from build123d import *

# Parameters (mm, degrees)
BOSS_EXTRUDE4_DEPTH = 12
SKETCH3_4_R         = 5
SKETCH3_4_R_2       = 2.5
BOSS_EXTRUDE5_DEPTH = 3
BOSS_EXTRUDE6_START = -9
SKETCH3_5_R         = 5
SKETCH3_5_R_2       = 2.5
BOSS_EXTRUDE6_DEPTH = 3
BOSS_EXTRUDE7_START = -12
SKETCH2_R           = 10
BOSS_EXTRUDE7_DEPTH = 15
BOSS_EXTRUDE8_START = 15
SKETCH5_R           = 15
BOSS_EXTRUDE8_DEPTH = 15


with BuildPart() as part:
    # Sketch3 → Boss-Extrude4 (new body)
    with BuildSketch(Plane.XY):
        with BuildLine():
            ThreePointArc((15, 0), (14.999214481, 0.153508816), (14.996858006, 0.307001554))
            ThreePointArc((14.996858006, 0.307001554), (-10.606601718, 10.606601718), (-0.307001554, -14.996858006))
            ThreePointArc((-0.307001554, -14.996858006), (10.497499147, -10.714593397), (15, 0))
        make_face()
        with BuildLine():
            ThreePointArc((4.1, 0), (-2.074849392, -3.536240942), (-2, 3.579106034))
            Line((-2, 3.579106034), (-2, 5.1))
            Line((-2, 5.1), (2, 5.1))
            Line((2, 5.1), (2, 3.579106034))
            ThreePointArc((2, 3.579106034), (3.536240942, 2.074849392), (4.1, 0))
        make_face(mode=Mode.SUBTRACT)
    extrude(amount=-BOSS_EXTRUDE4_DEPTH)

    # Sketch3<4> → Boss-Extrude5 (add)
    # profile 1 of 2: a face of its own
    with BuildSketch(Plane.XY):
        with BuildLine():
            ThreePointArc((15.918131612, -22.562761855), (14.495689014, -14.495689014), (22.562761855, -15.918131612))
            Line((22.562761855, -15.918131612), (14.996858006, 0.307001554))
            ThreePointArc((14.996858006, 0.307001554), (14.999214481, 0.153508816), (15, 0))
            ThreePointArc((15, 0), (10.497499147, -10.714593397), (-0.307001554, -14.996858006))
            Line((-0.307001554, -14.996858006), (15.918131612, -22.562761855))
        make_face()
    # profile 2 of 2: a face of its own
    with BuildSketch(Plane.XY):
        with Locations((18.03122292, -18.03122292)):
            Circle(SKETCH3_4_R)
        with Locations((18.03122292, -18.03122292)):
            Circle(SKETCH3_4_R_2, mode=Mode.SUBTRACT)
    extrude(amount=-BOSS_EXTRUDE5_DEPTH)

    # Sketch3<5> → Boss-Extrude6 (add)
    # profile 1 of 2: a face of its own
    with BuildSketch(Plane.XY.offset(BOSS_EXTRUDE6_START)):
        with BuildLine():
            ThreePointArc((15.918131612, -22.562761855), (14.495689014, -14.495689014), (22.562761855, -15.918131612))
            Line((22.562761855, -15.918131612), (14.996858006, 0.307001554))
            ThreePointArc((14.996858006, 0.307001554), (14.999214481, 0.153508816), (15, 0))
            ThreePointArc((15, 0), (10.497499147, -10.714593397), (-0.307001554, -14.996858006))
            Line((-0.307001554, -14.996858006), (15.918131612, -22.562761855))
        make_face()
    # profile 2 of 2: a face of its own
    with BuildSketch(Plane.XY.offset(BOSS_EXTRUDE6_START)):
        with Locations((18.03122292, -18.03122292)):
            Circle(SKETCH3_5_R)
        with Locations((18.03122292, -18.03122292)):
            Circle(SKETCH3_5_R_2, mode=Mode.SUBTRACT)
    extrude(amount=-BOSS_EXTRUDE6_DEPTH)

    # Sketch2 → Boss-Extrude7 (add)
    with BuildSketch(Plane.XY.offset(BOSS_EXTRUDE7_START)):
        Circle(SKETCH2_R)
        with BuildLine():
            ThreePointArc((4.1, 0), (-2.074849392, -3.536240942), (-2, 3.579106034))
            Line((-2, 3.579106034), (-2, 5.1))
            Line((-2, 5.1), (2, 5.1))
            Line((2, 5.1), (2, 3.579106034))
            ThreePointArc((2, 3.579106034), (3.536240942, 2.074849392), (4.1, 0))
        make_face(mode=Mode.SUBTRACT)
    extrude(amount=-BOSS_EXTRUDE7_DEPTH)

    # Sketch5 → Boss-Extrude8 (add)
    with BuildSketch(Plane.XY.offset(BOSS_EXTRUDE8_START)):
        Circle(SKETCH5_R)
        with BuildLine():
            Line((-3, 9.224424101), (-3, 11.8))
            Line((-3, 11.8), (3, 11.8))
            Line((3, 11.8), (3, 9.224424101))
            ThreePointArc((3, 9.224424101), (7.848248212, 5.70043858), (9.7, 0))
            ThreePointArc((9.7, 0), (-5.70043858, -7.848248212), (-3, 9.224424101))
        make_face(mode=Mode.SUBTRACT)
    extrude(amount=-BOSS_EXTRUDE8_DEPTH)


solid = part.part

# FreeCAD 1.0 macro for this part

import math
import FreeCAD as App
import Part
import Sketcher
Q = App.Units.Quantity

doc = App.newDocument("Part")
body = doc.addObject("PartDesign::Body", "Body")

# Sketch on XY plane
sketch1 = doc.addObject("Sketcher::SketchObject", "Sketch")
body.addObject(sketch1)
sketch1.AttachmentSupport = (doc.XY_Plane, [""])
sketch1.MapMode = "FlatFace"
sketch1.addGeometry([
    Part.ArcOfCircle(Part.Circle(App.Vector(0, 0, 0), App.Vector(0, 0, 1), 15), math.radians(0), math.radians(1.17)),  # 0
    Part.ArcOfCircle(Part.Circle(App.Vector(0, 0, 0), App.Vector(0, 0, 1), 15), math.radians(1), math.radians(269)),  # 1
    Part.ArcOfCircle(Part.Circle(App.Vector(0, 0, 0), App.Vector(0, 0, 1), 15), math.radians(-91), math.radians(0)),  # 2
    Part.ArcOfCircle(Part.Circle(App.Vector(0, 0, 0), App.Vector(0, 0, 1), 4.1), math.radians(0), math.radians(61)),  # 3
    Part.ArcOfCircle(Part.Circle(App.Vector(0, 0, 0), App.Vector(0, 0, 1), 4.1), math.radians(119), math.radians(360)),  # 4
    Part.LineSegment(App.Vector(-2, 3.58, 0), App.Vector(-2, 5.1, 0)),  # 5
    Part.LineSegment(App.Vector(-2, 5.1, 0), App.Vector(2, 5.1, 0)),  # 6
    Part.LineSegment(App.Vector(2, 5.1, 0), App.Vector(2, 3.58, 0)),  # 7
], False)
sketch1.addConstraint([
    Sketcher.Constraint("Tangent", 0, 2, 1, 1),
    Sketcher.Constraint("Tangent", 1, 2, 2, 1),
    Sketcher.Constraint("Coincident", 2, 2, 0, 1),
    Sketcher.Constraint("Tangent", 3, 1, 4, 2),
    Sketcher.Constraint("Coincident", 4, 1, 5, 1),
    Sketcher.Constraint("Coincident", 5, 2, 6, 1),
    Sketcher.Constraint("Coincident", 6, 2, 7, 1),
    Sketcher.Constraint("Coincident", 7, 2, 3, 2),
    Sketcher.Constraint("Vertical", 5),
    Sketcher.Constraint("Horizontal", 6),
    Sketcher.Constraint("Vertical", 7),
    Sketcher.Constraint("Coincident", 0, 3, -1, 1),
    Sketcher.Constraint("Coincident", 3, 3, -1, 1),
    Sketcher.Constraint("Equal", 0, 1),
    Sketcher.Constraint("Equal", 3, 4),
    Sketcher.Constraint("PointOnObject", 2, 2, -1),
    Sketcher.Constraint("PointOnObject", 3, 1, -1),
    Sketcher.Constraint("Horizontal", 4, 1, 7, 2),
    Sketcher.Constraint("Radius", 0, Q("15 mm")),
    Sketcher.Constraint("Radius", 3, Q("4.1 mm")),
    Sketcher.Constraint("DistanceX", 6, 1, 6, 2, Q("4 mm")),
    Sketcher.Constraint("DistanceY", -1, 1, 5, 2, Q("5.1 mm")),
    Sketcher.Constraint("DistanceY", -1, 1, 0, 2, Q("0.307002 mm")),
    Sketcher.Constraint("DistanceX", 1, 2, -1, 1, Q("0.307002 mm")),
])
pad1 = doc.addObject("PartDesign::Pad", "Pad")
body.addObject(pad1)
pad1.Profile = sketch1
pad1.Length = 12
pad1.Reversed = True

# Sketch on XY plane
sketch2 = doc.addObject("Sketcher::SketchObject", "Sketch001")
body.addObject(sketch2)
sketch2.AttachmentSupport = (doc.XY_Plane, [""])
sketch2.MapMode = "FlatFace"
sketch2.addGeometry([
    Part.LineSegment(App.Vector(22.56, -15.92, 0), App.Vector(15, 0.31, 0)),  # 0
    Part.ArcOfCircle(Part.Circle(App.Vector(0, 0, 0), App.Vector(0, 0, 1), 15), math.radians(0), math.radians(1.17)),  # 1
    Part.ArcOfCircle(Part.Circle(App.Vector(0, 0, 0), App.Vector(0, 0, 1), 15), math.radians(-91), math.radians(0)),  # 2
    Part.LineSegment(App.Vector(-0.31, -15, 0), App.Vector(15.92, -22.56, 0)),  # 3
    Part.ArcOfCircle(Part.Circle(App.Vector(18.03, -18.03, 0), App.Vector(0, 0, 1), 5), math.radians(-115), math.radians(25)),  # 4
    Part.Circle(App.Vector(18.03, -18.03, 0), App.Vector(0, 0, 1), 2.5),  # 5
], False)
sketch2.addConstraint([
    Sketcher.Constraint("Coincident", 0, 2, 1, 2),
    Sketcher.Constraint("Tangent", 1, 1, 2, 2),
    Sketcher.Constraint("Coincident", 2, 1, 3, 1),
    Sketcher.Constraint("Tangent", 3, 2, 4, 1),
    Sketcher.Constraint("Tangent", 4, 2, 0, 1),
    Sketcher.Constraint("Coincident", 1, 3, -1, 1),
    Sketcher.Constraint("Coincident", 5, 3, 4, 3),
    Sketcher.Constraint("Equal", 1, 2),
    Sketcher.Constraint("PointOnObject", 1, 1, -1),
    Sketcher.Constraint("Equal", 0, 3),
    Sketcher.Constraint("Diameter", 5, Q("5 mm")),
    Sketcher.Constraint("Radius", 1, Q("15 mm")),
    Sketcher.Constraint("Radius", 4, Q("5 mm")),
    Sketcher.Constraint("Angle", 0, Q("115 deg")),
    Sketcher.Constraint("Angle", 3, Q("-25 deg")),
    Sketcher.Constraint("DistanceY", -1, 1, 0, 2, Q("0.307002 mm")),
])
pad2 = doc.addObject("PartDesign::Pad", "Pad001")
body.addObject(pad2)
pad2.Profile = sketch2
pad2.Length = 3
pad2.Reversed = True

# Sketch on XY plane
sketch3 = doc.addObject("Sketcher::SketchObject", "Sketch002")
body.addObject(sketch3)
sketch3.AttachmentSupport = (doc.XY_Plane, [""])
sketch3.MapMode = "FlatFace"
sketch3.AttachmentOffset = App.Placement(App.Vector(0, 0, -9), App.Rotation())
sketch3.addGeometry([
    Part.LineSegment(App.Vector(22.56, -15.92, 0), App.Vector(15, 0.31, 0)),  # 0
    Part.ArcOfCircle(Part.Circle(App.Vector(0, 0, 0), App.Vector(0, 0, 1), 15), math.radians(0), math.radians(1.17)),  # 1
    Part.ArcOfCircle(Part.Circle(App.Vector(0, 0, 0), App.Vector(0, 0, 1), 15), math.radians(-91), math.radians(0)),  # 2
    Part.LineSegment(App.Vector(-0.31, -15, 0), App.Vector(15.92, -22.56, 0)),  # 3
    Part.ArcOfCircle(Part.Circle(App.Vector(18.03, -18.03, 0), App.Vector(0, 0, 1), 5), math.radians(-115), math.radians(25)),  # 4
    Part.Circle(App.Vector(18.03, -18.03, 0), App.Vector(0, 0, 1), 2.5),  # 5
], False)
sketch3.addConstraint([
    Sketcher.Constraint("Coincident", 0, 2, 1, 2),
    Sketcher.Constraint("Tangent", 1, 1, 2, 2),
    Sketcher.Constraint("Coincident", 2, 1, 3, 1),
    Sketcher.Constraint("Tangent", 3, 2, 4, 1),
    Sketcher.Constraint("Tangent", 4, 2, 0, 1),
    Sketcher.Constraint("Coincident", 1, 3, -1, 1),
    Sketcher.Constraint("Coincident", 5, 3, 4, 3),
    Sketcher.Constraint("Equal", 1, 2),
    Sketcher.Constraint("PointOnObject", 1, 1, -1),
    Sketcher.Constraint("Equal", 0, 3),
    Sketcher.Constraint("Diameter", 5, Q("5 mm")),
    Sketcher.Constraint("Radius", 1, Q("15 mm")),
    Sketcher.Constraint("Radius", 4, Q("5 mm")),
    Sketcher.Constraint("Angle", 0, Q("115 deg")),
    Sketcher.Constraint("Angle", 3, Q("-25 deg")),
    Sketcher.Constraint("DistanceY", -1, 1, 0, 2, Q("0.307002 mm")),
])
pad3 = doc.addObject("PartDesign::Pad", "Pad002")
body.addObject(pad3)
pad3.Profile = sketch3
pad3.Length = 3
pad3.Reversed = True

# Sketch on XY plane
sketch4 = doc.addObject("Sketcher::SketchObject", "Sketch003")
body.addObject(sketch4)
sketch4.AttachmentSupport = (doc.XY_Plane, [""])
sketch4.MapMode = "FlatFace"
sketch4.AttachmentOffset = App.Placement(App.Vector(0, 0, -12), App.Rotation())
sketch4.addGeometry([
    Part.Circle(App.Vector(0, 0, 0), App.Vector(0, 0, 1), 10),  # 0
    Part.ArcOfCircle(Part.Circle(App.Vector(0, 0, 0), App.Vector(0, 0, 1), 4.1), math.radians(0), math.radians(61)),  # 1
    Part.ArcOfCircle(Part.Circle(App.Vector(0, 0, 0), App.Vector(0, 0, 1), 4.1), math.radians(119), math.radians(360)),  # 2
    Part.LineSegment(App.Vector(-2, 3.6, 0), App.Vector(-2, 5.1, 0)),  # 3
    Part.LineSegment(App.Vector(-2, 5.1, 0), App.Vector(2, 5.1, 0)),  # 4
    Part.LineSegment(App.Vector(2, 5.1, 0), App.Vector(2, 3.6, 0)),  # 5
], False)
sketch4.addConstraint([
    Sketcher.Constraint("Tangent", 1, 1, 2, 2),
    Sketcher.Constraint("Coincident", 2, 1, 3, 1),
    Sketcher.Constraint("Coincident", 3, 2, 4, 1),
    Sketcher.Constraint("Coincident", 4, 2, 5, 1),
    Sketcher.Constraint("Coincident", 5, 2, 1, 2),
    Sketcher.Constraint("Vertical", 3),
    Sketcher.Constraint("Horizontal", 4),
    Sketcher.Constraint("Vertical", 5),
    Sketcher.Constraint("Coincident", 0, 3, -1, 1),
    Sketcher.Constraint("Coincident", 1, 3, -1, 1),
    Sketcher.Constraint("Equal", 1, 2),
    Sketcher.Constraint("PointOnObject", 1, 1, -1),
    Sketcher.Constraint("Horizontal", 2, 1, 5, 2),
    Sketcher.Constraint("Diameter", 0, Q("20 mm")),
    Sketcher.Constraint("Radius", 1, Q("4.1 mm")),
    Sketcher.Constraint("DistanceX", 4, 1, 4, 2, Q("4 mm")),
    Sketcher.Constraint("DistanceY", -1, 1, 3, 2, Q("5.1 mm")),
])
pad4 = doc.addObject("PartDesign::Pad", "Pad003")
body.addObject(pad4)
pad4.Profile = sketch4
pad4.Length = 15
pad4.Reversed = True

# Sketch on XY plane
sketch5 = doc.addObject("Sketcher::SketchObject", "Sketch004")
body.addObject(sketch5)
sketch5.AttachmentSupport = (doc.XY_Plane, [""])
sketch5.MapMode = "FlatFace"
sketch5.AttachmentOffset = App.Placement(App.Vector(0, 0, 15), App.Rotation())
sketch5.addGeometry([
    Part.Circle(App.Vector(0, 0, 0), App.Vector(0, 0, 1), 15),  # 0
    Part.ArcOfCircle(Part.Circle(App.Vector(0, 0, 0), App.Vector(0, 0, 1), 9.7), math.radians(108), math.radians(360)),  # 1
    Part.LineSegment(App.Vector(-3, 9.2, 0), App.Vector(-3, 11.8, 0)),  # 2
    Part.LineSegment(App.Vector(-3, 11.8, 0), App.Vector(3, 11.8, 0)),  # 3
    Part.LineSegment(App.Vector(3, 11.8, 0), App.Vector(3, 9.2, 0)),  # 4
    Part.ArcOfCircle(Part.Circle(App.Vector(0, 0, 0), App.Vector(0, 0, 1), 9.7), math.radians(0), math.radians(72)),  # 5
], False)
sketch5.addConstraint([
    Sketcher.Constraint("Coincident", 1, 1, 2, 1),
    Sketcher.Constraint("Coincident", 2, 2, 3, 1),
    Sketcher.Constraint("Coincident", 3, 2, 4, 1),
    Sketcher.Constraint("Coincident", 4, 2, 5, 2),
    Sketcher.Constraint("Tangent", 5, 1, 1, 2),
    Sketcher.Constraint("Vertical", 2),
    Sketcher.Constraint("Horizontal", 3),
    Sketcher.Constraint("Vertical", 4),
    Sketcher.Constraint("Coincident", 0, 3, -1, 1),
    Sketcher.Constraint("Coincident", 1, 3, -1, 1),
    Sketcher.Constraint("Equal", 1, 5),
    Sketcher.Constraint("PointOnObject", 5, 1, -1),
    Sketcher.Constraint("Horizontal", 1, 1, 4, 2),
    Sketcher.Constraint("Diameter", 0, Q("30 mm")),
    Sketcher.Constraint("Radius", 1, Q("9.7 mm")),
    Sketcher.Constraint("DistanceX", 3, 1, 3, 2, Q("6 mm")),
    Sketcher.Constraint("DistanceY", -1, 1, 2, 2, Q("11.8 mm")),
])
pad5 = doc.addObject("PartDesign::Pad", "Pad004")
body.addObject(pad5)
pad5.Profile = sketch5
pad5.Length = 15
pad5.Reversed = True

doc.recompute()
